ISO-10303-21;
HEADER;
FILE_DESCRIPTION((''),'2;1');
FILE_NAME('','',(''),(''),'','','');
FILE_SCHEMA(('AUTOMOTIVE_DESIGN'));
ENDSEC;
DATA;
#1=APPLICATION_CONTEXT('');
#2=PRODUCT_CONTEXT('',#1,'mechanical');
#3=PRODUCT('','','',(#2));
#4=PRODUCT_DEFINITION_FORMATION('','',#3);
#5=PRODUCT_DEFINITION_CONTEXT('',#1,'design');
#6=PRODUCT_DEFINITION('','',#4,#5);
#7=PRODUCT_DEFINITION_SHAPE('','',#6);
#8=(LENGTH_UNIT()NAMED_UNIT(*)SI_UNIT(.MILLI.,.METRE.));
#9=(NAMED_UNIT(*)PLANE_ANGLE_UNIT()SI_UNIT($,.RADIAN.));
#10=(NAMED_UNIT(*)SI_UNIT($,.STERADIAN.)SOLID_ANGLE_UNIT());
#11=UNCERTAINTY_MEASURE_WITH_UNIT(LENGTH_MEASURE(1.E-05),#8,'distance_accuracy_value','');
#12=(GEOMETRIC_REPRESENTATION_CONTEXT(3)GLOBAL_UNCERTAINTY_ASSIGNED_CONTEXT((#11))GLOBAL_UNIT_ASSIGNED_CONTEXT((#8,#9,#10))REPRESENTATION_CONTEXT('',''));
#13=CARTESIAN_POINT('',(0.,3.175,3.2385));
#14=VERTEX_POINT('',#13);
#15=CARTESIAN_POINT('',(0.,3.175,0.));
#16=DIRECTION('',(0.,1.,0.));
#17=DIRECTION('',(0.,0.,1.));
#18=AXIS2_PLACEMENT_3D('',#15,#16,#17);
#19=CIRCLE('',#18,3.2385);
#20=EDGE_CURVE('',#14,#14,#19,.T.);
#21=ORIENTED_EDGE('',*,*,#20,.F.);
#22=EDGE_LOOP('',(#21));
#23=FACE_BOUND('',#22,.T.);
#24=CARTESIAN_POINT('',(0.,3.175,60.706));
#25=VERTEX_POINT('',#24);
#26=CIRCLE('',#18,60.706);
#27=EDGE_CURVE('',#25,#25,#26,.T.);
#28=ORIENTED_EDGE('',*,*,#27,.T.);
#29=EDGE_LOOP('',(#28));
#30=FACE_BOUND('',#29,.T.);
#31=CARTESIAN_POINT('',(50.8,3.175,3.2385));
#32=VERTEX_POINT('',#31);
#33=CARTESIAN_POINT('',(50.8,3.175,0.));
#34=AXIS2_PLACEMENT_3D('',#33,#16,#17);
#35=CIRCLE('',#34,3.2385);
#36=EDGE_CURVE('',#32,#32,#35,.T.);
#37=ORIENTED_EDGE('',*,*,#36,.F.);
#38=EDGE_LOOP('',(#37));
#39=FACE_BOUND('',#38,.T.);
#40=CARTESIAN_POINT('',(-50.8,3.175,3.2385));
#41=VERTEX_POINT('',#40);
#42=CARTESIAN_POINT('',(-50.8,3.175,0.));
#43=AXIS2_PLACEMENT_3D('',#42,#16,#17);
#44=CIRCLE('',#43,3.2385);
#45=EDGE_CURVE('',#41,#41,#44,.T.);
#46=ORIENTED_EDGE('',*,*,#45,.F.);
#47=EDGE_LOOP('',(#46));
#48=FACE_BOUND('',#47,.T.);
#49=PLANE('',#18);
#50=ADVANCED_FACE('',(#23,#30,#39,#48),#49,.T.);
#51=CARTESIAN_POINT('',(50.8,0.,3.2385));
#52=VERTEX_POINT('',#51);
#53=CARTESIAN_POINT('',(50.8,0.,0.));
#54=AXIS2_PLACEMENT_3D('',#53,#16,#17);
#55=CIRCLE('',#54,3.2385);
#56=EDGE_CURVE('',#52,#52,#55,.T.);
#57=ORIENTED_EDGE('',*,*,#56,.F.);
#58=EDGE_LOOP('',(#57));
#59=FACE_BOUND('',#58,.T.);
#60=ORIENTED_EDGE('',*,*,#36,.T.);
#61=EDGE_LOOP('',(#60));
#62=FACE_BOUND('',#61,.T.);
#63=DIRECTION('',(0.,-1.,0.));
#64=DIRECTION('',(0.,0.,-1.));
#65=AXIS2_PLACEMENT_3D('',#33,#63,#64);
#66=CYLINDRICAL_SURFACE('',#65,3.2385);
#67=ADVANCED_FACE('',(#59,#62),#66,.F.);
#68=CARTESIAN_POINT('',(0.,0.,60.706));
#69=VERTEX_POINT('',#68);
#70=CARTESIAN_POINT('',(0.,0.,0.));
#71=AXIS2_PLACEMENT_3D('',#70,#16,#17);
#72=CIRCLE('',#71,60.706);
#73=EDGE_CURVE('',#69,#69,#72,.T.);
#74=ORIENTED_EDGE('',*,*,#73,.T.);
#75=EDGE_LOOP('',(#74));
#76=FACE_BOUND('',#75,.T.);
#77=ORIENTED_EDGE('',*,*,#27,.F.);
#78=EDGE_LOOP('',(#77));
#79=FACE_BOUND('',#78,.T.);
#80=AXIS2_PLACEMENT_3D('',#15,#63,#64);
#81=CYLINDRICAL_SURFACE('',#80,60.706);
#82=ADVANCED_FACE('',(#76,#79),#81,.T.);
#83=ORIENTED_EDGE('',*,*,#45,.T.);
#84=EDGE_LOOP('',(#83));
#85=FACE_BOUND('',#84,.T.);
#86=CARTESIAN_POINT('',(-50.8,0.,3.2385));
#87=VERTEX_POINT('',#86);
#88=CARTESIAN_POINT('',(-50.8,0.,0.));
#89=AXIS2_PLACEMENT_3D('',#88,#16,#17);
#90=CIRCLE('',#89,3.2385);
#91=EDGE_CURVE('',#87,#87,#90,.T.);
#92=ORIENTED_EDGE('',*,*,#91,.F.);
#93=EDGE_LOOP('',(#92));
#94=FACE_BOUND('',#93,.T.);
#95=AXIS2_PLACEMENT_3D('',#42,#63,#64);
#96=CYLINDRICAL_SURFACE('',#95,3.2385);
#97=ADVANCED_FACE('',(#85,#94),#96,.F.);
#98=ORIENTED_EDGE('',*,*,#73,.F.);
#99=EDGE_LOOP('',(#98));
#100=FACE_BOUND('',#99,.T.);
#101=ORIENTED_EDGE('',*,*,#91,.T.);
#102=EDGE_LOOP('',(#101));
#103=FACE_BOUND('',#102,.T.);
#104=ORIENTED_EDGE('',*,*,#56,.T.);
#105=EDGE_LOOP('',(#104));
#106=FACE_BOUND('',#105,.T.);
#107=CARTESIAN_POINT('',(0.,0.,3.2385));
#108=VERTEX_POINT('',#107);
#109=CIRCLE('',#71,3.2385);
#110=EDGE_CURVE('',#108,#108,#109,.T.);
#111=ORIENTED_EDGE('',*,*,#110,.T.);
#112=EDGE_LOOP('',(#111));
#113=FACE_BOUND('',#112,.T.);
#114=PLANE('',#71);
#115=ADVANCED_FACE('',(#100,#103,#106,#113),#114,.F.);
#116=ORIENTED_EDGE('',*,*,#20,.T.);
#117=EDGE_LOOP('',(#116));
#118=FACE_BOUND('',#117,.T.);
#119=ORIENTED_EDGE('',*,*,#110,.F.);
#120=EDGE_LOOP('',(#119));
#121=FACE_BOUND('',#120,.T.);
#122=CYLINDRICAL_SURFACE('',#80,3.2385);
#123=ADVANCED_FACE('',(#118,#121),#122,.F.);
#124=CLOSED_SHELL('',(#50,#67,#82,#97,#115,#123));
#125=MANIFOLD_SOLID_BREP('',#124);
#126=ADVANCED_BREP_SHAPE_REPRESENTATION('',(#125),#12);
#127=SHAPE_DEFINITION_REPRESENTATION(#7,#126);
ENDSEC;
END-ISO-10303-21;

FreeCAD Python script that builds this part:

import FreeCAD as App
import Part
import Sketcher
from FreeCAD import Vector
Q = App.Units.Quantity

doc = App.newDocument("Part")
params = doc.addObject("Spreadsheet::Sheet", "Params")
for row, (alias, value) in enumerate([
    ("sketch1_diameter", "4.78 in"),
    ("sketch1_diameter2", "0.255 in"),
    ("pad1_length", "0.125 in"),
], start=1):
    params.set(f"A{row}", alias)
    params.set(f"B{row}", "=" + value)
    params.setAlias(f"B{row}", alias)

body = doc.addObject("PartDesign::Body", "Body")

# Sketch on XZ plane
sketch1 = doc.addObject("Sketcher::SketchObject", "Sketch")
body.addObject(sketch1)
sketch1.AttachmentSupport = (doc.XZ_Plane, [""])
sketch1.MapMode = "FlatFace"
sketch1.addGeometry(Part.Circle(Vector(0, 0, 0), Vector(0, 0, 1), 60.7), False)
sketch1.addGeometry(Part.Circle(Vector(-50.8, 0, 0), Vector(0, 0, 1), 3.2), False)
sketch1.addGeometry(Part.Circle(Vector(0, 0, 0), Vector(0, 0, 1), 3.2), False)
sketch1.addGeometry(Part.Circle(Vector(50.8, 0, 0), Vector(0, 0, 1), 3.2), False)
sketch1.addConstraint(Sketcher.Constraint("Coincident", 0, 3, -1, 1))
sketch1.addConstraint(Sketcher.Constraint("Coincident", 2, 3, -1, 1))
sketch1.addConstraint(Sketcher.Constraint("Equal", 1, 2))
sketch1.addConstraint(Sketcher.Constraint("Equal", 2, 3))
sketch1.addConstraint(Sketcher.Constraint("Symmetric", 1, 3, 3, 3, -1, 1))
sketch1.addConstraint(Sketcher.Constraint("PointOnObject", 1, 3, -1))
sketch1.addConstraint(Sketcher.Constraint("Diameter", 0, Q("4.78 in")))
sketch1.addConstraint(Sketcher.Constraint("Diameter", 1, Q("0.255 in")))
sketch1.addConstraint(Sketcher.Constraint("DistanceX", 1, 3, -1, 1, Q("2 in")))
sketch1.setExpression("Constraints[6]", "Params.sketch1_diameter")
sketch1.setExpression("Constraints[7]", "Params.sketch1_diameter2")
pad1 = doc.addObject("PartDesign::Pad", "Pad")
body.addObject(pad1)
pad1.Profile = sketch1
pad1.setExpression("Length", "Params.pad1_length")
pad1.Reversed = True

doc.recompute()
